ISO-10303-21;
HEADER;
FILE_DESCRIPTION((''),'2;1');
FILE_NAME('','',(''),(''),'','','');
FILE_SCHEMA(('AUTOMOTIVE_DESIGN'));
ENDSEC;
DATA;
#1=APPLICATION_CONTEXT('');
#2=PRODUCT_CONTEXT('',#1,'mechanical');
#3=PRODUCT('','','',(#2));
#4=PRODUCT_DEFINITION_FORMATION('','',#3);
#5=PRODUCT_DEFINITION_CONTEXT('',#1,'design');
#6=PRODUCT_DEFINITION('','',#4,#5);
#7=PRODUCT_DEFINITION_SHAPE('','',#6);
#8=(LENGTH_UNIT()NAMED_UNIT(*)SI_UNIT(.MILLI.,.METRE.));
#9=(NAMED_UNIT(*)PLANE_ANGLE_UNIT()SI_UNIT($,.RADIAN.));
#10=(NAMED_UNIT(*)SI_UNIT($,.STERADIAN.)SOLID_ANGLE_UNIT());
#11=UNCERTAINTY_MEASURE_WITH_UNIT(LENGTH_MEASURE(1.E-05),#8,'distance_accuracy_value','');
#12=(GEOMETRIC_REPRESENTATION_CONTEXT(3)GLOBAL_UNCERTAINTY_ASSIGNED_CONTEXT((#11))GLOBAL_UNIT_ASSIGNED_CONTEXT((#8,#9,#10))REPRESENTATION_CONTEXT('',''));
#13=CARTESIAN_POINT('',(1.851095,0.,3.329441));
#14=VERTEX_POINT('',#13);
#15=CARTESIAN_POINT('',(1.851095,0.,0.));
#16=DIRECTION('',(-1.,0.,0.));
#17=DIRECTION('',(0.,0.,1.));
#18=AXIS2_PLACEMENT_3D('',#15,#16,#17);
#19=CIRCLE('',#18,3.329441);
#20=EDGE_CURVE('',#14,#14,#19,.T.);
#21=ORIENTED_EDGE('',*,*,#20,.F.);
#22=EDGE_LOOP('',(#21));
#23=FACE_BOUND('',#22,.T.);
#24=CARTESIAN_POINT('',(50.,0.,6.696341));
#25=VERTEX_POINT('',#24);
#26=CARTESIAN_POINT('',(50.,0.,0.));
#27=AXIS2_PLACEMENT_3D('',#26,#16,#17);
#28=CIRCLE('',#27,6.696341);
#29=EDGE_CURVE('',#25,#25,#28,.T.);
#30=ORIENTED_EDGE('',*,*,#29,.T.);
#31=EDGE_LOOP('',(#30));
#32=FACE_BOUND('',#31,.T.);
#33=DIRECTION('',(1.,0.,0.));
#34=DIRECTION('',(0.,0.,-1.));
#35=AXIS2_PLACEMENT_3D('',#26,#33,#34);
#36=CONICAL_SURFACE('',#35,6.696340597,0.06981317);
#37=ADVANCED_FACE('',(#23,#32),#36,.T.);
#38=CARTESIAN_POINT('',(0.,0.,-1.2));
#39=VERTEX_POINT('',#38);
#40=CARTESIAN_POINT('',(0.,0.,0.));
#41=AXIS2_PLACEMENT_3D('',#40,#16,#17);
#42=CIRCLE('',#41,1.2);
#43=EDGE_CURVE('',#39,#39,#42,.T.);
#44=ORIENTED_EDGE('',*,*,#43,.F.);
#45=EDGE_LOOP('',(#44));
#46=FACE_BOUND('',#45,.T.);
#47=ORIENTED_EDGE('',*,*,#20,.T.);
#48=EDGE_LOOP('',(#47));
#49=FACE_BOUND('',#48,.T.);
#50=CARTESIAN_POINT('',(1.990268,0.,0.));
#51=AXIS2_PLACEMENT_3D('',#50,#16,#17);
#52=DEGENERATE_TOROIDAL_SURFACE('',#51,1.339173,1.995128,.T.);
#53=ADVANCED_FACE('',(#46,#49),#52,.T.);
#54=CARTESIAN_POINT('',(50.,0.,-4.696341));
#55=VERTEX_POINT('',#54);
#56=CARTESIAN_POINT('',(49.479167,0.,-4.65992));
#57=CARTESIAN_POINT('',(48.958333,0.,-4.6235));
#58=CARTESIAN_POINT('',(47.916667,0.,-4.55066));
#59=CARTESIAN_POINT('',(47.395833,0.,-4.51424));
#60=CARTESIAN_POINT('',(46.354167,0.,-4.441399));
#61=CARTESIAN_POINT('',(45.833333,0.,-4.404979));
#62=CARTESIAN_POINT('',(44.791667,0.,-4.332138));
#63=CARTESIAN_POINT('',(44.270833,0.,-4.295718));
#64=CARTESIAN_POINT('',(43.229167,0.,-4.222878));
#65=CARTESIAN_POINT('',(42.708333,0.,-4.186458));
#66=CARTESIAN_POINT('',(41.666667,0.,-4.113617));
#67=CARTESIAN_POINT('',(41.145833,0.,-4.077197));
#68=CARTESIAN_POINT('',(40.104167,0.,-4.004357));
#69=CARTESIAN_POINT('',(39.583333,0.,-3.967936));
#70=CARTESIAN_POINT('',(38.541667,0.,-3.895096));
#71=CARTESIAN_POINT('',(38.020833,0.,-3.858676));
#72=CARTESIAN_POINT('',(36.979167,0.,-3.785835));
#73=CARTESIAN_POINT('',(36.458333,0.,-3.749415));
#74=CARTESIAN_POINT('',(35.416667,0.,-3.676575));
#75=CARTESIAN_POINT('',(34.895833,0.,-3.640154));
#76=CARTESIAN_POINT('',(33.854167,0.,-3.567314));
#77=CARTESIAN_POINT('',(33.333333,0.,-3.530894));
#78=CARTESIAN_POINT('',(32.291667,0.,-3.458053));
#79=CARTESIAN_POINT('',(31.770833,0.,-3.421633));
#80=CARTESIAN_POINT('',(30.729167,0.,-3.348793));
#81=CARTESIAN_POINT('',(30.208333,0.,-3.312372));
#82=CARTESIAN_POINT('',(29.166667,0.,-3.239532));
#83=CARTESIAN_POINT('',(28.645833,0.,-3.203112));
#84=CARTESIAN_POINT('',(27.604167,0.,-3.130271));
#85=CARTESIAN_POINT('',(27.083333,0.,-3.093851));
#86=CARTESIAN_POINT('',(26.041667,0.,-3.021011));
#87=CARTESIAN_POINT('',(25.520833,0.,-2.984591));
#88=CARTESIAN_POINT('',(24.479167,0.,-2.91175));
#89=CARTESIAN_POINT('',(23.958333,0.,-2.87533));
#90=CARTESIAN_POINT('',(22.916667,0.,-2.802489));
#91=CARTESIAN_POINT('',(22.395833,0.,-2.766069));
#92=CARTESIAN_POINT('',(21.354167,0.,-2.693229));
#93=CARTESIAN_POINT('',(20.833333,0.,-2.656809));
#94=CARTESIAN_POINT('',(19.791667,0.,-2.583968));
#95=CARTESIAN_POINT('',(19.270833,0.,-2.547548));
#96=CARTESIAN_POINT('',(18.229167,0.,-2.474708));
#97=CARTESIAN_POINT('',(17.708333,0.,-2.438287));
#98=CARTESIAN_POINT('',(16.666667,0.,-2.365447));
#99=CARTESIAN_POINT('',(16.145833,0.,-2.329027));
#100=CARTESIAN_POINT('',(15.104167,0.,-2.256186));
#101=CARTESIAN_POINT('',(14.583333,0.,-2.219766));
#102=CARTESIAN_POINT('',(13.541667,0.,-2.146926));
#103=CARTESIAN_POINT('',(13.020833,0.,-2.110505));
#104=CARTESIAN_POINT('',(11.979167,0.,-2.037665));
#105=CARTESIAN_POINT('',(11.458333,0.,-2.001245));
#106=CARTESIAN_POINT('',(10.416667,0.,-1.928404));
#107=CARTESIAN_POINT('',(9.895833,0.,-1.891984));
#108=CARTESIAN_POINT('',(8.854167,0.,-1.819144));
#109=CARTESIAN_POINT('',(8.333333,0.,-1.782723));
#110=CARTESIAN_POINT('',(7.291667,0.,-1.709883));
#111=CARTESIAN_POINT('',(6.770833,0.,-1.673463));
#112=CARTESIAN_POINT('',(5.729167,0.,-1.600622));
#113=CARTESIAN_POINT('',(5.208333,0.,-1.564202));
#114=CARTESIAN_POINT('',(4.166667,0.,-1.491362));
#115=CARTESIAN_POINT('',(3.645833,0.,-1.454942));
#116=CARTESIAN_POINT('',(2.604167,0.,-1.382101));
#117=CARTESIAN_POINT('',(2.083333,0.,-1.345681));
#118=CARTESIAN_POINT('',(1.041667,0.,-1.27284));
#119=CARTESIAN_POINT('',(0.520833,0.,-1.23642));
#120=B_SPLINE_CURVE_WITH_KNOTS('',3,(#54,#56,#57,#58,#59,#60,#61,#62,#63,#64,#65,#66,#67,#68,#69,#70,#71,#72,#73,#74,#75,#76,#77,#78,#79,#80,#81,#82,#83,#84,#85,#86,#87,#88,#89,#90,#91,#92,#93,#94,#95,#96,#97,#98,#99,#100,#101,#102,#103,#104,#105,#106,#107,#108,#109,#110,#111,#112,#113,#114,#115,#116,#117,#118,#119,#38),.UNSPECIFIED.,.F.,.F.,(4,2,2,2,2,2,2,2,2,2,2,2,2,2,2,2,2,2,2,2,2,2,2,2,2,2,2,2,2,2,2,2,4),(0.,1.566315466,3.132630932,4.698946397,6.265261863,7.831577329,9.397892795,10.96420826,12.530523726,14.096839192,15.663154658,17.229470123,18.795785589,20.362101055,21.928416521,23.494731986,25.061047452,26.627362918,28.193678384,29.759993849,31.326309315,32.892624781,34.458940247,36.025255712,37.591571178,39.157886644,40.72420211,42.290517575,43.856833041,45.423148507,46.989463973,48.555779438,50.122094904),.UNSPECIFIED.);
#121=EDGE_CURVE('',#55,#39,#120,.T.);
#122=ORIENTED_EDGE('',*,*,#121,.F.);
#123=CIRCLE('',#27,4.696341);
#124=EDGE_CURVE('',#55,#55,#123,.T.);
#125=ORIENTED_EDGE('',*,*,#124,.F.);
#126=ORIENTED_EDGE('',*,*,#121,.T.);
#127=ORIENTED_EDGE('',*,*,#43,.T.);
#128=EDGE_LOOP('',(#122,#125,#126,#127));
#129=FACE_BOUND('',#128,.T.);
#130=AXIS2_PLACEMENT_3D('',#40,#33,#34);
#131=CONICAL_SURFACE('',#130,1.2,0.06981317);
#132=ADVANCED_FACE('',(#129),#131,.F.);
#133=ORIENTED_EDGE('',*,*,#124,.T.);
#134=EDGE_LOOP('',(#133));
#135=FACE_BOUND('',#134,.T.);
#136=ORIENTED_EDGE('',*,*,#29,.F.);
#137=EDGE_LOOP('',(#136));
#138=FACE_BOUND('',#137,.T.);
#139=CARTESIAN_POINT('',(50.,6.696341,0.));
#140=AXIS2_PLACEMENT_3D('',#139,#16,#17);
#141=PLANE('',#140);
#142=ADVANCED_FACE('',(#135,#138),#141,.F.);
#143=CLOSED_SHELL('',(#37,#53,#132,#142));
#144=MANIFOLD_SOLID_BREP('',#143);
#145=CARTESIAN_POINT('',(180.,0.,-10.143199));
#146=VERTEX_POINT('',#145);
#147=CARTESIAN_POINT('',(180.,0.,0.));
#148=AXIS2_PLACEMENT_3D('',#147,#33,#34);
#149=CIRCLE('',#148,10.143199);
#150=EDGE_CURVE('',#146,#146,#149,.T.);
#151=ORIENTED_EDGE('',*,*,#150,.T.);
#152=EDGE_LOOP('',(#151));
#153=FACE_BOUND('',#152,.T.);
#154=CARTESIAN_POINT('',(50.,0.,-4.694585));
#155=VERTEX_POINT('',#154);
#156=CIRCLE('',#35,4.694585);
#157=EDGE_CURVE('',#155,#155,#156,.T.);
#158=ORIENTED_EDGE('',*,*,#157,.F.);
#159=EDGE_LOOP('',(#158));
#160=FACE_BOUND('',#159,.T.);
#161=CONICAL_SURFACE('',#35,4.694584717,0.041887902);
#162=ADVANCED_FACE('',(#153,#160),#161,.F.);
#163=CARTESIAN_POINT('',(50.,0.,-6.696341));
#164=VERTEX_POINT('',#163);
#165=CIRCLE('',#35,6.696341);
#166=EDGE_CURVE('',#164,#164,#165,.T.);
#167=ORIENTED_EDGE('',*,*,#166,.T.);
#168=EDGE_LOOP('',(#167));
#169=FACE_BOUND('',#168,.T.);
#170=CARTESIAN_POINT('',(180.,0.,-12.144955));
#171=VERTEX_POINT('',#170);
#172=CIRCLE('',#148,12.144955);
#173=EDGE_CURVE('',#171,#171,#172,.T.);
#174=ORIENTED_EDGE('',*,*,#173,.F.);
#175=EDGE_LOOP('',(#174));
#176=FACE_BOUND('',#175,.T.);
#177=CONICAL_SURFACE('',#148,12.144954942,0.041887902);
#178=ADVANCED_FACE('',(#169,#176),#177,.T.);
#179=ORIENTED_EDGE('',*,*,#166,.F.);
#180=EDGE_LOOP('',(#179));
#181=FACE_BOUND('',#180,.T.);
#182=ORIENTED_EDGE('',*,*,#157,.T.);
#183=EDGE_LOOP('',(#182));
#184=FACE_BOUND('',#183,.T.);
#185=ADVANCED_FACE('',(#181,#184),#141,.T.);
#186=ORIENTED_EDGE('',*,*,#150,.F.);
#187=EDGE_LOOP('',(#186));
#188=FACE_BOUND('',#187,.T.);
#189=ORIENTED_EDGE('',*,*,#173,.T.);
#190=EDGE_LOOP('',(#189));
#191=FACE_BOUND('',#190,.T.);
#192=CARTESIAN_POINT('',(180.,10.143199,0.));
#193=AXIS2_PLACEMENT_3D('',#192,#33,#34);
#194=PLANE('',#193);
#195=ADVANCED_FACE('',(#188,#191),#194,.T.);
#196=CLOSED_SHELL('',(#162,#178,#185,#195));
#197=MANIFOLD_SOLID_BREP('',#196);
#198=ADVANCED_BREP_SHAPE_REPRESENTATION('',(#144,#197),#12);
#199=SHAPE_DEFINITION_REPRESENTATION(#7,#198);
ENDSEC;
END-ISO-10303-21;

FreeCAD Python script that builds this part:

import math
import FreeCAD as App
import Part
import Sketcher
from FreeCAD import Vector
Q = App.Units.Quantity


def add_polygon(sketch, points):
    """Adds a closed chain of lines whose ends are joined by coincident constraints."""
    first, n = sketch.GeometryCount, len(points)
    for a, b in zip(points, points[1:] + points[:1]):
        sketch.addGeometry(Part.LineSegment(App.Vector(*a, 0), App.Vector(*b, 0)), False)
    for i in range(n):
        sketch.addConstraint(Sketcher.Constraint("Coincident", first + i, 2, first + (i + 1) % n, 1))

doc = App.newDocument("Part")
body = doc.addObject("PartDesign::Body", "Body")

# Sketch on XY plane
sketch1 = doc.addObject("Sketcher::SketchObject", "Sketch")
body.addObject(sketch1)
sketch1.AttachmentSupport = (doc.XY_Plane, [""])
sketch1.MapMode = "FlatFace"
sketch1.addGeometry([
    Part.LineSegment(Vector(0, 1.2, 0), Vector(50, 4.7, 0)),
    Part.LineSegment(Vector(50, 4.7, 0), Vector(50, 6.7, 0)),
    Part.LineSegment(Vector(50, 6.7, 0), Vector(1.9, 3.3, 0)),
    Part.ArcOfCircle(Part.Circle(Vector(2, 1.3, 0), Vector(0, 0, 1), 2), math.radians(94), math.radians(184)),
], False)
sketch1.addConstraint([
    Sketcher.Constraint("Coincident", 0, 2, 1, 1),
    Sketcher.Constraint("Coincident", 1, 2, 2, 1),
    Sketcher.Constraint("Tangent", 2, 2, 3, 1),
    Sketcher.Constraint("Coincident", 3, 2, 0, 1),
    Sketcher.Constraint("Vertical", 1),
    Sketcher.Constraint("PointOnObject", 3, 2, -2),
    Sketcher.Constraint("Parallel", 0, 2),
    Sketcher.Constraint("DistanceY", 1, 1, 1, 2, Q("2 mm")),
    Sketcher.Constraint("Angle", 0, Q("4 deg")),
    Sketcher.Constraint("DistanceX", -1, 1, 0, 2, Q("50 mm")),
    Sketcher.Constraint("DistanceY", -1, 1, 3, 2, Q("1.2 mm")),
    Sketcher.Constraint("Radius", 3, Q("1.995128 mm")),
])
revolution = doc.addObject("PartDesign::Revolution", "Revolution")
body.addObject(revolution)
revolution.Profile = sketch1
revolution.ReferenceAxis = (sketch1, ["H_Axis"])
revolution.Angle = 360
body2 = doc.addObject("PartDesign::Body", "Body001")

# Sketch on XY plane
sketch2 = doc.addObject("Sketcher::SketchObject", "Sketch001")
body2.addObject(sketch2)
sketch2.AttachmentSupport = (doc.getObject("XY_Plane001"), [""])
sketch2.MapMode = "FlatFace"
add_polygon(sketch2, [(50, 4.7), (180, 10.1), (180, 12.1), (50, 6.7)])  # lines 0-3
sketch2.addConstraint([
    Sketcher.Constraint("Vertical", 1),
    Sketcher.Constraint("Vertical", 3),
    Sketcher.Constraint("Parallel", 0, 2),
    Sketcher.Constraint("DistanceX", -1, 1, 0, 2, Q("180 mm")),
    Sketcher.Constraint("DistanceX", -1, 1, 2, 2, Q("50 mm")),
    Sketcher.Constraint("Angle", 0, Q("2.4 deg")),
    Sketcher.Constraint("DistanceY", -1, 1, 0, 2, Q("10.143199 mm")),
    Sketcher.Constraint("DistanceY", 1, 1, 1, 2, Q("2.001756 mm")),
])
revolution2 = doc.addObject("PartDesign::Revolution", "Revolution001")
body2.addObject(revolution2)
revolution2.Profile = sketch2
revolution2.ReferenceAxis = (sketch2, ["H_Axis"])
revolution2.Angle = 360

doc.recompute()
